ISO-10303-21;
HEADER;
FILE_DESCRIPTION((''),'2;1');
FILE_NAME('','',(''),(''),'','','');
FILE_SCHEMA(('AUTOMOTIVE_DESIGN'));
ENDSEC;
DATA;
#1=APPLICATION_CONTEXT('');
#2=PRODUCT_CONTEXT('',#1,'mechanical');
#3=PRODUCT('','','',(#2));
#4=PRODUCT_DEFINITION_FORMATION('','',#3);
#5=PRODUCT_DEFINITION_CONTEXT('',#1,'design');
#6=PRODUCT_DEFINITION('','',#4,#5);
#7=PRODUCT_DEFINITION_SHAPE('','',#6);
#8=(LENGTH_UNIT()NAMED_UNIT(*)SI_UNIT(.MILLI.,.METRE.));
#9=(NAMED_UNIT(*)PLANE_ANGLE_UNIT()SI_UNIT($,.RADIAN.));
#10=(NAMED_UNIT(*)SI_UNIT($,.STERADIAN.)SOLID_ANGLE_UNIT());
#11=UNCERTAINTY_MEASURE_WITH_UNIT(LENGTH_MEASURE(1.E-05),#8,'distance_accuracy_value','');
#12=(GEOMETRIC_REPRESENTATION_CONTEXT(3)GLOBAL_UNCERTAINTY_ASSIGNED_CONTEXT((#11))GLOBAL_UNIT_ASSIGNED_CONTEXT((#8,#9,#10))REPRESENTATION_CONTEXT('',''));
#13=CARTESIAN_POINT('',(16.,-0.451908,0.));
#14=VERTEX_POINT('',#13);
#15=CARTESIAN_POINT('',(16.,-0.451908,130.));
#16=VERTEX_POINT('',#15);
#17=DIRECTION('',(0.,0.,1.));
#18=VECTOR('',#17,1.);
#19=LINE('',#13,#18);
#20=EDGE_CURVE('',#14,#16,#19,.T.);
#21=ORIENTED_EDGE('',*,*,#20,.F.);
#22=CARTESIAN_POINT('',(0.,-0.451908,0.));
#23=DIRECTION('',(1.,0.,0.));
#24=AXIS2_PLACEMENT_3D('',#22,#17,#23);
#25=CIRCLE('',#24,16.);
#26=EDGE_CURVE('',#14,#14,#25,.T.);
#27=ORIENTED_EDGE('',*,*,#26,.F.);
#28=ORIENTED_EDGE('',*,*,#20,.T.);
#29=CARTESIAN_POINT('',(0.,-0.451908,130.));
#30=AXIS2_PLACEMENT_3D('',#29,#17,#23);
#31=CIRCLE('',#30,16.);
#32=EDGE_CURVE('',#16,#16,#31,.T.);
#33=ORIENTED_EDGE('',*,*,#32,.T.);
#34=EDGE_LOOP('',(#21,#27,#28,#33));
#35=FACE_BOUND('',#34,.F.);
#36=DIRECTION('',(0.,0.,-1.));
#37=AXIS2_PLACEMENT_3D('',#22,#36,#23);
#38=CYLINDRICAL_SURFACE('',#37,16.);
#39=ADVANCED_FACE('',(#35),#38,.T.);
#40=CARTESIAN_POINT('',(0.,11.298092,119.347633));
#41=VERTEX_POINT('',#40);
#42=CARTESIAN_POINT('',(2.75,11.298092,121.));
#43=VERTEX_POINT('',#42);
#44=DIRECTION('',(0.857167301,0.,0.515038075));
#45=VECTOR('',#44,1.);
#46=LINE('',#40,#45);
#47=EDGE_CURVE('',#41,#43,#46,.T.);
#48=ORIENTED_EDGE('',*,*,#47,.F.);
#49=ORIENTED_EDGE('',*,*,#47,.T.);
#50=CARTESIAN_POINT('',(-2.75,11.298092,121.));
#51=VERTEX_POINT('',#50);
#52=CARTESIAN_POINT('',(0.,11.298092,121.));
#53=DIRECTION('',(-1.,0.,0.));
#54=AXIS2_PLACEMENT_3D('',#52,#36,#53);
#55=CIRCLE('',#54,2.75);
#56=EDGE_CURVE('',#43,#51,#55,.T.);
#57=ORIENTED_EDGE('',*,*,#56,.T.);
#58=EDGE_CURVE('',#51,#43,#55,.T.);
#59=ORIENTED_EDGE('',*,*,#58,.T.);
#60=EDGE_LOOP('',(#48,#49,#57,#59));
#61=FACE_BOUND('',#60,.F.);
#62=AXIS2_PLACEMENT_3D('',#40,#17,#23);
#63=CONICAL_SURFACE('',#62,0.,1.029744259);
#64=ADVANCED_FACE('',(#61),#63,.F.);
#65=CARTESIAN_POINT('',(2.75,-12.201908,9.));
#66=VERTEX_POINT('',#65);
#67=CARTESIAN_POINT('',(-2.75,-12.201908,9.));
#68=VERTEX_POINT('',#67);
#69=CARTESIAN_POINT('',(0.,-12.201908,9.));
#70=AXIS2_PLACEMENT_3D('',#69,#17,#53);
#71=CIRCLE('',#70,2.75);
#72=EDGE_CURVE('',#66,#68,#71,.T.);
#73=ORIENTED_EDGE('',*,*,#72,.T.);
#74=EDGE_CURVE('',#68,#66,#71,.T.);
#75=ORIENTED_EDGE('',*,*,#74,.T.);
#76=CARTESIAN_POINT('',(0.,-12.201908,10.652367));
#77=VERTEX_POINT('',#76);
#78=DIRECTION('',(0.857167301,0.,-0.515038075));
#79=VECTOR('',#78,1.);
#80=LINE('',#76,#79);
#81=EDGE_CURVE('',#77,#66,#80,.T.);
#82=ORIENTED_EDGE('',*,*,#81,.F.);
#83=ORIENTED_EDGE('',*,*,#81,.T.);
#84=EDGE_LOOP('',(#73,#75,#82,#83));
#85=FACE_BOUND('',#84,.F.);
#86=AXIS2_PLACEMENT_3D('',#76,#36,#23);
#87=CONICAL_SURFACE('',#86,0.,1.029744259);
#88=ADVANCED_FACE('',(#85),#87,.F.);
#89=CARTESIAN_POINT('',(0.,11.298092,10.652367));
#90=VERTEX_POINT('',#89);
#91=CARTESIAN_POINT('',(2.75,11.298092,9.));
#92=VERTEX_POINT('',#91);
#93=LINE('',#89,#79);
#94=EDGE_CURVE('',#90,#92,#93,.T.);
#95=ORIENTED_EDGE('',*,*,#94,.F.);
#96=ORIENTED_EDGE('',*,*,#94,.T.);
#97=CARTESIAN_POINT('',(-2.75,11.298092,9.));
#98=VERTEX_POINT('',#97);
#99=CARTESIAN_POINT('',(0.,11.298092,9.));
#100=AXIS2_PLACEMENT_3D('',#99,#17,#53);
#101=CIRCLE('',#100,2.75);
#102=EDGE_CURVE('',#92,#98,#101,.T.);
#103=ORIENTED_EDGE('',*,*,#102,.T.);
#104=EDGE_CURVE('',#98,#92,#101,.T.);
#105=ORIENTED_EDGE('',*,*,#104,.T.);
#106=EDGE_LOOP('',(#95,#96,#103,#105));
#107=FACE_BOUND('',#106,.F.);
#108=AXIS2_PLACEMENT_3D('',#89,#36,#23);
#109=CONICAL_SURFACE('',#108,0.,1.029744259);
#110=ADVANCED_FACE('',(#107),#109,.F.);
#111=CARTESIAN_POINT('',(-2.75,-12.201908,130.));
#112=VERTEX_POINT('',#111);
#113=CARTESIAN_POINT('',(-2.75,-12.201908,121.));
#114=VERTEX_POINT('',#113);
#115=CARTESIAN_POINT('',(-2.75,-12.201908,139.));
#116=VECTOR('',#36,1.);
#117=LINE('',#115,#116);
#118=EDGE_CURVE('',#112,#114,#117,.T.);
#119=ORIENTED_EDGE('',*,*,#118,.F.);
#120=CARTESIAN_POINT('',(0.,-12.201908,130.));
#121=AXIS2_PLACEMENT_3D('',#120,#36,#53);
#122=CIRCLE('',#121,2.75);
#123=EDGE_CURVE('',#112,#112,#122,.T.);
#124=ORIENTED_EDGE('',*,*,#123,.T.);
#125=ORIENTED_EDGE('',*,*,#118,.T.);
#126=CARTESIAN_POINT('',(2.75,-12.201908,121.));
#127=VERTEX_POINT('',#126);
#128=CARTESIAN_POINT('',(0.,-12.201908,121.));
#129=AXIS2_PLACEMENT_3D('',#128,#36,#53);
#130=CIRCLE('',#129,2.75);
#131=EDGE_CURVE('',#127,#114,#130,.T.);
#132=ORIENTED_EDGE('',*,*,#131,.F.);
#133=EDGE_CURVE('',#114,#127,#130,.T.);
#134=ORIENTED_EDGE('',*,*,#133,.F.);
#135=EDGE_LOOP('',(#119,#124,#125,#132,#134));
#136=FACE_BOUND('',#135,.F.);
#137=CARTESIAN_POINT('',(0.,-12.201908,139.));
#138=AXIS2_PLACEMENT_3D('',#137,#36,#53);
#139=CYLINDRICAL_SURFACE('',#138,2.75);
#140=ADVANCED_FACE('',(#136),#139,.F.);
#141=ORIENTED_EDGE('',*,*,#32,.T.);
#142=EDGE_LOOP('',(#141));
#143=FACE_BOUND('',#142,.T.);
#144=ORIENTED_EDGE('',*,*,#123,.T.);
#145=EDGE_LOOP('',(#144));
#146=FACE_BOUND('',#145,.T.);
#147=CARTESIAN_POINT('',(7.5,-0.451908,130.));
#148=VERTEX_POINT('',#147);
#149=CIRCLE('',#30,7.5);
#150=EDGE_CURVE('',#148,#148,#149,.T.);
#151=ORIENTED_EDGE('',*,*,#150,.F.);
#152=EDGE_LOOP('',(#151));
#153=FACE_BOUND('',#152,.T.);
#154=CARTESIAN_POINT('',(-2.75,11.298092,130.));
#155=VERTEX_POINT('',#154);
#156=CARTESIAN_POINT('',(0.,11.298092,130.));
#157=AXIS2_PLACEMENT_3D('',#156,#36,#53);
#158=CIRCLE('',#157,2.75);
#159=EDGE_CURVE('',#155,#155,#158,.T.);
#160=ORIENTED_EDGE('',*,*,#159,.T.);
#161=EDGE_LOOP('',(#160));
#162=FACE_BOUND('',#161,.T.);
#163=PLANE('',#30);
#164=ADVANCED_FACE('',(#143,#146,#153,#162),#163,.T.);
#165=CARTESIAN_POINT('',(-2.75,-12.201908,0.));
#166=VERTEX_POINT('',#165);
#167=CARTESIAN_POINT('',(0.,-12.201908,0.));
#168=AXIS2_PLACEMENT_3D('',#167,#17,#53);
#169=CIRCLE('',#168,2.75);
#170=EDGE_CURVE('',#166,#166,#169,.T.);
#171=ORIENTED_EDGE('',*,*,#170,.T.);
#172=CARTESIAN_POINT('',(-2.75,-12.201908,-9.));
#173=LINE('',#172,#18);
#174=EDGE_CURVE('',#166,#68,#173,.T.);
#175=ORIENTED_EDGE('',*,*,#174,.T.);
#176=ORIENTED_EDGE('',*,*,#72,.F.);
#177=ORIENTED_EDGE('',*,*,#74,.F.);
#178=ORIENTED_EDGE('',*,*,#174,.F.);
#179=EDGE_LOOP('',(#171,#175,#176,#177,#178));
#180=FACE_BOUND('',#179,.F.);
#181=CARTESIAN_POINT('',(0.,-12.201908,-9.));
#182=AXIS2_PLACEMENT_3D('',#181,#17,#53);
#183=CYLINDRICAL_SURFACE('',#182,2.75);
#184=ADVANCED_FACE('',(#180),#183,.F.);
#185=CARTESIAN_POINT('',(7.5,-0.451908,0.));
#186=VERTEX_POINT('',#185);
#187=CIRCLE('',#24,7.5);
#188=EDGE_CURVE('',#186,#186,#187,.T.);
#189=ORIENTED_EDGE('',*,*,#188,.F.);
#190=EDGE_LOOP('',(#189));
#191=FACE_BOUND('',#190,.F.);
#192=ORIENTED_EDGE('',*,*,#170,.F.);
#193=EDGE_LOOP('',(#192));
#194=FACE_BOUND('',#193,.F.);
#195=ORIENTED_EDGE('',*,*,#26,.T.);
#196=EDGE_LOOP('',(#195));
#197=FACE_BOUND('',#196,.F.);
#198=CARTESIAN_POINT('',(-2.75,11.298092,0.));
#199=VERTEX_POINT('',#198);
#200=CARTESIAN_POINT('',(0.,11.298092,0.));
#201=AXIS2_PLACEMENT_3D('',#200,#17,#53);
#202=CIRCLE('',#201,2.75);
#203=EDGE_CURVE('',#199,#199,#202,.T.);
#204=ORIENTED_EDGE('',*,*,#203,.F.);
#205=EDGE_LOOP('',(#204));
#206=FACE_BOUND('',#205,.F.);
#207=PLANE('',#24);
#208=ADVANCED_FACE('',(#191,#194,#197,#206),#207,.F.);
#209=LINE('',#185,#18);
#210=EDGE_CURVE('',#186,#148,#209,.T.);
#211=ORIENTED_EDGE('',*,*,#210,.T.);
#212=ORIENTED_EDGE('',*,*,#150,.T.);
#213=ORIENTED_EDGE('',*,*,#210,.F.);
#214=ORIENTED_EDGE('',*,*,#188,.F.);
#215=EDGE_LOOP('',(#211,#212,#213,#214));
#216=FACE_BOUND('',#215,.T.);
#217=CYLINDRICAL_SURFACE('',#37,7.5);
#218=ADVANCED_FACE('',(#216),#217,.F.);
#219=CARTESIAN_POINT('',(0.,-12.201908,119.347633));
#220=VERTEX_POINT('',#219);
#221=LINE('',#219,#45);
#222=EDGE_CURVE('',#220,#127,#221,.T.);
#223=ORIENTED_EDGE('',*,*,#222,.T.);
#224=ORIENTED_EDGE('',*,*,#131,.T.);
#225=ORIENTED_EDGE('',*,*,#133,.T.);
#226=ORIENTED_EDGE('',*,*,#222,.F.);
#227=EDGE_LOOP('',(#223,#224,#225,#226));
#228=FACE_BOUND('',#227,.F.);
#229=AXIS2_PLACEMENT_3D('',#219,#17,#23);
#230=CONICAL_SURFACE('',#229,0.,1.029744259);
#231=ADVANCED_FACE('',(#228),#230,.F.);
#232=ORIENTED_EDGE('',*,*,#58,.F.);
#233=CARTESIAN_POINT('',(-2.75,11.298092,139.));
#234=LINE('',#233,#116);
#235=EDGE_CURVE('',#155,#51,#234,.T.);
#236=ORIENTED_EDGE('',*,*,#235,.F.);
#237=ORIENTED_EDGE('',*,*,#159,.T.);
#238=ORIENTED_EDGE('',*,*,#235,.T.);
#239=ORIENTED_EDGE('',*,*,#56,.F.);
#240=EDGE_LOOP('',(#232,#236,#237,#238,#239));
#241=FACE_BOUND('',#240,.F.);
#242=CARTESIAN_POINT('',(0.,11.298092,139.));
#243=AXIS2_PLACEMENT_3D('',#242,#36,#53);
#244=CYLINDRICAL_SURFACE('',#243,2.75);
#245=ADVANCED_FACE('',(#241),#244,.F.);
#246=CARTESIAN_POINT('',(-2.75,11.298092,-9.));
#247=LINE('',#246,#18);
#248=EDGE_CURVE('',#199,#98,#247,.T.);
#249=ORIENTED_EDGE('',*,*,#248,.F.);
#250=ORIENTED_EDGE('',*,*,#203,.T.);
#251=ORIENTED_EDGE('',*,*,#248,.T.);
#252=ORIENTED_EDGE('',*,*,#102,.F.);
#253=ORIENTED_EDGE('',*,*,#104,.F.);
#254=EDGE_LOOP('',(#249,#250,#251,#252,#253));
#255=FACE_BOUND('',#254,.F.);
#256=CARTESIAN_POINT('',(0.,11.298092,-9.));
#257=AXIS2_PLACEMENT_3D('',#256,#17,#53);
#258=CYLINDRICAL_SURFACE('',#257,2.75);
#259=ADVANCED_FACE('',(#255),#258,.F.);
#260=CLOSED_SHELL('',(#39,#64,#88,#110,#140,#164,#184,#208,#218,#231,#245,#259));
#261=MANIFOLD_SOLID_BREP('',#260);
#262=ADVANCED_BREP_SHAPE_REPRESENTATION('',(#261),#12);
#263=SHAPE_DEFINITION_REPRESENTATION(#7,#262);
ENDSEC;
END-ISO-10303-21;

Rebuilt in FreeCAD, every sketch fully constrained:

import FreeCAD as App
import Part
import Sketcher
from FreeCAD import Vector

doc = App.newDocument("Part")
body = doc.addObject("PartDesign::Body", "Body")

# Sketch on XY plane
sketch1 = body.newObject("Sketcher::SketchObject", "Sketch")
sketch1.AttachmentSupport = (doc.getObject("XY_Plane"), [""])
sketch1.MapMode = "FlatFace"
sketch1.addGeometry([
    Part.Circle(Vector(0, -0.451908, 0), Vector(0, 0, 1), 16),
    Part.Circle(Vector(0, -0.451908, 0), Vector(0, 0, 1), 7.5),
], False)
sketch1.addConstraint([
    Sketcher.Constraint("Coincident", 1, 3, 0, 3),
    Sketcher.Constraint("PointOnObject", 0, 3, -2),
    Sketcher.Constraint("Diameter", 0, 32.0),
    Sketcher.Constraint("Diameter", 1, 15.0),
    Sketcher.Constraint("DistanceY", 0, 3, -1, 1, 0.451908),
])
pad1 = body.newObject("PartDesign::Pad", "Pad")
pad1.Profile = sketch1
pad1.Length = 130

# Sketch on XY plane
sketch2 = body.newObject("Sketcher::SketchObject", "Sketch001")
sketch2.AttachmentSupport = (doc.getObject("XY_Plane"), [""])
sketch2.MapMode = "FlatFace"
sketch2.AttachmentOffset = App.Placement(Vector(0, 0, 130), App.Rotation())
sketch2.addGeometry(Part.Circle(Vector(0, 11.298092, 0), Vector(0, 0, 1), 2.75), False)
sketch2.addConstraint([
    Sketcher.Constraint("PointOnObject", 0, 3, -2),
    Sketcher.Constraint("Diameter", 0, 5.5),
    Sketcher.Constraint("DistanceY", -1, 1, 0, 3, 11.298092),
])
doc.recompute()
hole = body.newObject("PartDesign::Hole", "Hole")
hole.Profile = sketch2
hole.ThreadType = "None"
hole.Diameter = 5.5
hole.DepthType = "Dimension"
hole.Depth = 9
hole.DrillPoint = "Angled"
hole.DrillPointAngle = 118

# Sketch on XY plane
sketch3 = body.newObject("Sketcher::SketchObject", "Sketch002")
sketch3.AttachmentSupport = (doc.getObject("XY_Plane"), [""])
sketch3.MapMode = "FlatFace"
sketch3.AttachmentOffset = App.Placement(Vector(0, 0, 130), App.Rotation())
sketch3.addGeometry(Part.Circle(Vector(0, -12.201908, 0), Vector(0, 0, 1), 2.75), False)
sketch3.addConstraint([
    Sketcher.Constraint("PointOnObject", 0, 3, -2),
    Sketcher.Constraint("Diameter", 0, 5.5),
    Sketcher.Constraint("DistanceY", 0, 3, -1, 1, 12.201908),
])
doc.recompute()
hole2 = body.newObject("PartDesign::Hole", "Hole001")
hole2.Profile = sketch3
hole2.ThreadType = "None"
hole2.Diameter = 5.5
hole2.DepthType = "Dimension"
hole2.Depth = 9
hole2.DrillPoint = "Angled"
hole2.DrillPointAngle = 118

# Sketch on XY plane
sketch4 = body.newObject("Sketcher::SketchObject", "Sketch003")
sketch4.AttachmentSupport = (doc.getObject("XY_Plane"), [""])
sketch4.MapMode = "FlatFace"
sketch4.addGeometry(Part.Circle(Vector(0, 11.298092, 0), Vector(0, 0, 1), 2.75), False)
sketch4.addConstraint([
    Sketcher.Constraint("PointOnObject", 0, 3, -2),
    Sketcher.Constraint("Diameter", 0, 5.5),
    Sketcher.Constraint("DistanceY", -1, 1, 0, 3, 11.298092),
])
doc.recompute()
hole3 = body.newObject("PartDesign::Hole", "Hole002")
hole3.Profile = sketch4
hole3.ThreadType = "None"
hole3.Diameter = 5.5
hole3.DepthType = "Dimension"
hole3.Depth = 9
hole3.DrillPoint = "Angled"
hole3.DrillPointAngle = 118
hole3.Reversed = True

# Sketch on XY plane
sketch5 = body.newObject("Sketcher::SketchObject", "Sketch004")
sketch5.AttachmentSupport = (doc.getObject("XY_Plane"), [""])
sketch5.MapMode = "FlatFace"
sketch5.addGeometry(Part.Circle(Vector(0, -12.201908, 0), Vector(0, 0, 1), 2.75), False)
sketch5.addConstraint([
    Sketcher.Constraint("PointOnObject", 0, 3, -2),
    Sketcher.Constraint("Diameter", 0, 5.5),
    Sketcher.Constraint("DistanceY", 0, 3, -1, 1, 12.201908),
])
doc.recompute()
hole4 = body.newObject("PartDesign::Hole", "Hole003")
hole4.Profile = sketch5
hole4.ThreadType = "None"
hole4.Diameter = 5.5
hole4.DepthType = "Dimension"
hole4.Depth = 9
hole4.DrillPoint = "Angled"
hole4.DrillPointAngle = 118
hole4.Reversed = True

doc.recompute()
